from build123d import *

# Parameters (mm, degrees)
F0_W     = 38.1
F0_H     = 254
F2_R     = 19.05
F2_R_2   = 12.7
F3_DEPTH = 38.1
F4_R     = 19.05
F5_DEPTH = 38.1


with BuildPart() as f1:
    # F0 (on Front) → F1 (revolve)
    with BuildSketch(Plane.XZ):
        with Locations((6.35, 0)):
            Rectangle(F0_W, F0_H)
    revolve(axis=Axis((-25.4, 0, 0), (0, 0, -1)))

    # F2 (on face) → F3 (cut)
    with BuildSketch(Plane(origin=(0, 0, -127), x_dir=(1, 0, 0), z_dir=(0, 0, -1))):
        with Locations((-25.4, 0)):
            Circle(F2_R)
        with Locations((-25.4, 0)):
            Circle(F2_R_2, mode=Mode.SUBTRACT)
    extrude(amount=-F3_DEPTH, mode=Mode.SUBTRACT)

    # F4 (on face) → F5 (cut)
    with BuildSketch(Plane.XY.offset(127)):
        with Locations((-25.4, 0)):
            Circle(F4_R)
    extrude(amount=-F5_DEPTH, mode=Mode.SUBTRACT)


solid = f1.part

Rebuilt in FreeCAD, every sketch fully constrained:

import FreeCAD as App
import Part
import Sketcher

V = App.Vector
Q = App.Units.Quantity


def add_polygon(sketch, points):
    """Adds a closed chain of lines whose ends are joined by coincident constraints."""
    first, n = sketch.GeometryCount, len(points)
    for a, b in zip(points, points[1:] + points[:1]):
        sketch.addGeometry(Part.LineSegment(App.Vector(*a, 0), App.Vector(*b, 0)), False)
    for i in range(n):
        sketch.addConstraint(Sketcher.Constraint("Coincident", first + i, 2, first + (i + 1) % n, 1))

doc = App.newDocument("Part")
params = doc.addObject("Spreadsheet::Sheet", "Params")
for row, (alias, value) in enumerate([
    ("sketch1_height", "10 in"),
    ("sketch1_width", "1.5 in"),
    ("revolution_angle", "360 deg"),
    ("sketch2_diameter", "1 in"),
    ("sketch2_diameter2", "1.5 in"),
    ("pocket1_length", "1.5 in"),
    ("sketch3_diameter", "1.5 in"),
    ("pocket2_length", "1.5 in"),
], start=1):
    params.set(f"A{row}", alias)
    params.set(f"B{row}", "=" + value)
    params.setAlias(f"B{row}", alias)

body = doc.addObject("PartDesign::Body", "Body")

sketch1 = doc.addObject("Sketcher::SketchObject", "Sketch")
body.addObject(sketch1)
sketch1.AttachmentSupport = (doc.XZ_Plane, [""])
sketch1.MapMode = "FlatFace"
add_polygon(sketch1, [(-12.7, 127), (-12.7, -127), (25.4, -127), (25.4, 127)])
sketch1.addGeometry(Part.LineSegment(V(-25.4, 127, 0), V(-25.4, -127, 0)), True)
sketch1.addConstraint([
    Sketcher.Constraint("Vertical", 0),
    Sketcher.Constraint("Horizontal", 1),
    Sketcher.Constraint("Vertical", 2),
    Sketcher.Constraint("Horizontal", 3),
    Sketcher.Constraint("Vertical", 4),
    Sketcher.Constraint("Symmetric", 1, 2, 4, 1, -1, 1),
    Sketcher.Constraint("Horizontal", 3, 2, 4, 1),
    Sketcher.Constraint("Horizontal", 1, 2, 4, 2),
    Sketcher.Constraint("DistanceY", 0, 2, 0, 1, Q("10 in")),
    Sketcher.Constraint("DistanceX", 1, 1, 1, 2, Q("1.5 in")),
    Sketcher.Constraint("DistanceX", -1, 1, 1, 2, Q("1 in")),
])
sketch1.setExpression("Constraints[12]", "Params.sketch1_height")
sketch1.setExpression("Constraints[13]", "Params.sketch1_width")
revolution = doc.addObject("PartDesign::Revolution", "Revolution")
body.addObject(revolution)
revolution.Profile = sketch1
revolution.ReferenceAxis = (sketch1, ["Axis0"])
revolution.setExpression("Angle", "Params.revolution_angle")

sketch2 = doc.addObject("Sketcher::SketchObject", "Sketch001")
body.addObject(sketch2)
sketch2.AttachmentSupport = (doc.XY_Plane, [""])
sketch2.MapMode = "FlatFace"
sketch2.AttachmentOffset = App.Placement(V(0, 0, -5 * 25.4), App.Rotation())
sketch2.addGeometry([
    Part.Circle(V(-25.4, 0, 0), V(0, 0, 1), 19.05),
    Part.Circle(V(-25.4, 0, 0), V(0, 0, 1), 12.7),
], False)
sketch2.addConstraint([
    Sketcher.Constraint("Coincident", 1, 3, 0, 3),
    Sketcher.Constraint("PointOnObject", 0, 3, -1),
    Sketcher.Constraint("Diameter", 1, Q("1 in")),
    Sketcher.Constraint("Diameter", 0, Q("1.5 in")),
    Sketcher.Constraint("DistanceX", 0, 3, -1, 1, Q("1 in")),
])
sketch2.setExpression("Constraints[2]", "Params.sketch2_diameter")
sketch2.setExpression("Constraints[3]", "Params.sketch2_diameter2")
pocket1 = doc.addObject("PartDesign::Pocket", "Pocket")
body.addObject(pocket1)
pocket1.Profile = sketch2
pocket1.setExpression("Length", "Params.pocket1_length")
pocket1.Reversed = True

sketch3 = doc.addObject("Sketcher::SketchObject", "Sketch002")
body.addObject(sketch3)
sketch3.AttachmentSupport = (doc.XY_Plane, [""])
sketch3.MapMode = "FlatFace"
sketch3.AttachmentOffset = App.Placement(V(0, 0, 5 * 25.4), App.Rotation())
sketch3.addGeometry(Part.Circle(V(-25.4, 0, 0), V(0, 0, 1), 19.05), False)
sketch3.addConstraint([
    Sketcher.Constraint("PointOnObject", 0, 3, -1),
    Sketcher.Constraint("Diameter", 0, Q("1.5 in")),
    Sketcher.Constraint("DistanceX", 0, 3, -1, 1, Q("1 in")),
])
sketch3.setExpression("Constraints[1]", "Params.sketch3_diameter")
pocket2 = doc.addObject("PartDesign::Pocket", "Pocket001")
body.addObject(pocket2)
pocket2.Profile = sketch3
pocket2.setExpression("Length", "Params.pocket2_length")

doc.recompute()
